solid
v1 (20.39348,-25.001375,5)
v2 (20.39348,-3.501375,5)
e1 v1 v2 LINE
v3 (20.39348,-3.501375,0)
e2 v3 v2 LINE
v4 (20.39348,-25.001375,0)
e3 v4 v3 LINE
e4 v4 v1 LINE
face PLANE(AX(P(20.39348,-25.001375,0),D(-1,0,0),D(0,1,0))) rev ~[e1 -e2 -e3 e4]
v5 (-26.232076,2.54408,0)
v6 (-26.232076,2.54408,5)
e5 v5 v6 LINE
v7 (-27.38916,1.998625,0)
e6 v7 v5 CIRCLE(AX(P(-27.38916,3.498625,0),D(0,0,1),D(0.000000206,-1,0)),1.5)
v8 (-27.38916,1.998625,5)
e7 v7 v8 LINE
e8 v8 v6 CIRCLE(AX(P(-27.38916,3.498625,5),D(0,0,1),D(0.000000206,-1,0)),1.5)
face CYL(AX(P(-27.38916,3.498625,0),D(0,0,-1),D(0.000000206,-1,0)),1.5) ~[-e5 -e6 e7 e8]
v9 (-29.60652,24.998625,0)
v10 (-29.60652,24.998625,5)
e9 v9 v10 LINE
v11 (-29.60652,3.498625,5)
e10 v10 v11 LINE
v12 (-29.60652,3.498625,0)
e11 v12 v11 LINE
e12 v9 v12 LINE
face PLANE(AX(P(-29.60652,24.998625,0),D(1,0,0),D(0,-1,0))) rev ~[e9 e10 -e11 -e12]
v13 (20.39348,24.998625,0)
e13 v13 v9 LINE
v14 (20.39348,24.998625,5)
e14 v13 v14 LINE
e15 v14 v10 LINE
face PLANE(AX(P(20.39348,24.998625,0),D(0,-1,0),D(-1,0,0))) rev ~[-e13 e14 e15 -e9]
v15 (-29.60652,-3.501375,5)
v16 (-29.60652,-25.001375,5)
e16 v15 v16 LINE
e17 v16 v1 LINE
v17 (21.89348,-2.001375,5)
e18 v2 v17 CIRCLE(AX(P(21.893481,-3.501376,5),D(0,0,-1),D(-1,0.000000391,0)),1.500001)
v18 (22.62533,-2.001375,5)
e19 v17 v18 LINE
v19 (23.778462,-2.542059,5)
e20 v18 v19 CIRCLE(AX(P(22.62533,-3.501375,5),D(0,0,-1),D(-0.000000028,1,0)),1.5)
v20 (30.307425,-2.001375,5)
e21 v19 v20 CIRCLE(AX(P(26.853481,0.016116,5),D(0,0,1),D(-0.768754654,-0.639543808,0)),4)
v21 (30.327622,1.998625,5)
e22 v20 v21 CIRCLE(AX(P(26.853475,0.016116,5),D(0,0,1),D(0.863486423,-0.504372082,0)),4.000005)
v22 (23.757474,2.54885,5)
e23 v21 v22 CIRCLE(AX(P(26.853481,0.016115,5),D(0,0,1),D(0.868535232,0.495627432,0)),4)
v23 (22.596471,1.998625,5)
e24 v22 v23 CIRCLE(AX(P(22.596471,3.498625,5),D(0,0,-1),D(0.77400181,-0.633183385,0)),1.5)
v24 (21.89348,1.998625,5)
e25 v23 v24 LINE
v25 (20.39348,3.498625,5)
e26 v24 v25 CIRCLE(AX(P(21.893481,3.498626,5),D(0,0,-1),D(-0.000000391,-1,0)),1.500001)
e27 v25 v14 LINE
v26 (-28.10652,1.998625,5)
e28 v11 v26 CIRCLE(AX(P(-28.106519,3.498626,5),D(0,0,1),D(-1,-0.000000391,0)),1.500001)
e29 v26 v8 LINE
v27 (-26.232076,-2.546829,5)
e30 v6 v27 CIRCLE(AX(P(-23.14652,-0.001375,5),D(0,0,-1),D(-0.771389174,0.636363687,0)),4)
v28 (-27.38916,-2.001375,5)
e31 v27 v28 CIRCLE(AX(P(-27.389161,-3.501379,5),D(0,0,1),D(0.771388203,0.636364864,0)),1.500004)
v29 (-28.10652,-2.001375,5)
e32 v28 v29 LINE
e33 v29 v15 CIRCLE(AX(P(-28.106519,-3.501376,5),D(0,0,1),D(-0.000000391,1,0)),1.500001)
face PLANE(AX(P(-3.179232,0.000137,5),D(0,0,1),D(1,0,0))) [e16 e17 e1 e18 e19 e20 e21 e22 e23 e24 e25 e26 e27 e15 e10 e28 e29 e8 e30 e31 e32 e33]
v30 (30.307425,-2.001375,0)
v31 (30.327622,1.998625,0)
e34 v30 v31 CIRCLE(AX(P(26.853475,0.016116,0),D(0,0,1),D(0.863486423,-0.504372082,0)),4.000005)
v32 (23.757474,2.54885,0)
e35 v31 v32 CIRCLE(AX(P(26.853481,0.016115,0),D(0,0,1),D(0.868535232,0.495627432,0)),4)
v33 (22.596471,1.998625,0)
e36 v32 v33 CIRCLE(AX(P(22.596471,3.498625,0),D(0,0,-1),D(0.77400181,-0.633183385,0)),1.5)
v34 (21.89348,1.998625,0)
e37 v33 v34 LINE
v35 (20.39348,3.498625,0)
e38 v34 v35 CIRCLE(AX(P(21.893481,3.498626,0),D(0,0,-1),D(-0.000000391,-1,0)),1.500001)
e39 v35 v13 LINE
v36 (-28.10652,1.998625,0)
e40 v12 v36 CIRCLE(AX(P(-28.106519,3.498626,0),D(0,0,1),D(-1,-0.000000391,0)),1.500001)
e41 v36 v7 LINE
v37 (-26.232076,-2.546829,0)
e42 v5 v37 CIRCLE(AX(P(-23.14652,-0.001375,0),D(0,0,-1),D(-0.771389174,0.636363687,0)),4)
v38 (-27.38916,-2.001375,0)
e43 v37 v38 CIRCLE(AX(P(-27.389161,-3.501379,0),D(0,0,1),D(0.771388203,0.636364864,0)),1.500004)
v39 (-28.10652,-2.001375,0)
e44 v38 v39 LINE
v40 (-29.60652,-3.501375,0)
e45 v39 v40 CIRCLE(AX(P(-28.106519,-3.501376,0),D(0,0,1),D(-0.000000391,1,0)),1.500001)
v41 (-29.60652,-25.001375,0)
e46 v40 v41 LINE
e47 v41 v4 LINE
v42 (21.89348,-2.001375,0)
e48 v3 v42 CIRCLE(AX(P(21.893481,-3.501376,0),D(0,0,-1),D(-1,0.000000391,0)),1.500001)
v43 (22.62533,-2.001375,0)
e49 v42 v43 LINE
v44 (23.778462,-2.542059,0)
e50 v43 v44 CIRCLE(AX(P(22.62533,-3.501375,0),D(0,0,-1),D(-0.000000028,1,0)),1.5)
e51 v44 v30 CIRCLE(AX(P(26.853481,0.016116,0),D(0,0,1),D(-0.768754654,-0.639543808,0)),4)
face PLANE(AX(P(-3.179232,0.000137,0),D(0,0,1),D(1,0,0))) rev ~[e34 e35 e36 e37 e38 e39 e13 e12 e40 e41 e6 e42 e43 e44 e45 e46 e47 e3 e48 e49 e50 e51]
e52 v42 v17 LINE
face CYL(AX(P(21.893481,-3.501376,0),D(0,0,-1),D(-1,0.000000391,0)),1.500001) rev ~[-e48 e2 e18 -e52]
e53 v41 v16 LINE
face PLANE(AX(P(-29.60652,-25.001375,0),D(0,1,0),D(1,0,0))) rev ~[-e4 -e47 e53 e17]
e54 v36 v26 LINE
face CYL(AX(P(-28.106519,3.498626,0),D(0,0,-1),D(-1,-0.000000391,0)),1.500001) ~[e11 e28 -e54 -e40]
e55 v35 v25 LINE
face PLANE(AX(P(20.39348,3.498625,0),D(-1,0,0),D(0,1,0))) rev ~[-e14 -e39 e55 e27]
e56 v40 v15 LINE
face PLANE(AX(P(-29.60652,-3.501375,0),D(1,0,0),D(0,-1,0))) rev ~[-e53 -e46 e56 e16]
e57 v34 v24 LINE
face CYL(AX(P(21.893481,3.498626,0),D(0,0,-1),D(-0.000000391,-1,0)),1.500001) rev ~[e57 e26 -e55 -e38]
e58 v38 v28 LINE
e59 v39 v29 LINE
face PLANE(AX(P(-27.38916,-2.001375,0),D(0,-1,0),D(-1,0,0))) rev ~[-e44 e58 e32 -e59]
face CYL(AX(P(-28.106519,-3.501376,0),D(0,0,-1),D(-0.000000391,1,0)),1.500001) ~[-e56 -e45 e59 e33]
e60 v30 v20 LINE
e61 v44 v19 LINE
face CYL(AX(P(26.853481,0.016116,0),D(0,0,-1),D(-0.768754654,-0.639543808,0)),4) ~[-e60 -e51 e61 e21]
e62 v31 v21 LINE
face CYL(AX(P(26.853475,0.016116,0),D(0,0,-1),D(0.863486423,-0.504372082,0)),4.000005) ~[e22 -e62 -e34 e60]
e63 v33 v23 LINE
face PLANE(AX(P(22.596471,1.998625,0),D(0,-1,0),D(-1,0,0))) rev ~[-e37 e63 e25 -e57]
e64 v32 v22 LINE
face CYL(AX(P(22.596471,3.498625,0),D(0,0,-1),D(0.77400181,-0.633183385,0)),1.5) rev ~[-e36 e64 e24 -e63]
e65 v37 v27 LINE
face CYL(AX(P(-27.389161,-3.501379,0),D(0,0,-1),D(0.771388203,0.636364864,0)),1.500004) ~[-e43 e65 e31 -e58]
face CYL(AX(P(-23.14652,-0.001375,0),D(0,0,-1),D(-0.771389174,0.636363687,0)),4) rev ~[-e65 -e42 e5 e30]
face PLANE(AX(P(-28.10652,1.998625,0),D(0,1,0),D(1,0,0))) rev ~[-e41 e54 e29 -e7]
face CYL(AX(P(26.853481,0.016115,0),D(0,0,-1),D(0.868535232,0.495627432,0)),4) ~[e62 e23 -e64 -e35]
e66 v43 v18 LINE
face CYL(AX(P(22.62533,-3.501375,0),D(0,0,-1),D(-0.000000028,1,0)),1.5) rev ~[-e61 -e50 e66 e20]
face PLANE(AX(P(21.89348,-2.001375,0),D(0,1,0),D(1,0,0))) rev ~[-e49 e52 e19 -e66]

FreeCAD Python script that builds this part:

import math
import FreeCAD as App
import Part
import Sketcher

doc = App.newDocument("Part")
body = doc.addObject("PartDesign::Body", "Body")

sketch1 = body.newObject("Sketcher::SketchObject", "Sketch")
sketch1.AttachmentSupport = (doc.getObject("XY_Plane"), [""])
sketch1.MapMode = "FlatFace"
sketch1.addGeometry(Part.LineSegment(App.Vector(20.4, 25, 0), App.Vector(-29.6, 25, 0)), False)
sketch1.addGeometry(Part.LineSegment(App.Vector(-29.6, 25, 0), App.Vector(-29.6, 3.5, 0)), False)
sketch1.addGeometry(Part.ArcOfCircle(Part.Circle(App.Vector(-28.1, 3.5, 0), App.Vector(0, 0, 1), 1.5), math.radians(-180), math.radians(-90)), False)
sketch1.addGeometry(Part.LineSegment(App.Vector(-28.1, 2, 0), App.Vector(-27.4, 2, 0)), False)
sketch1.addGeometry(Part.ArcOfCircle(Part.Circle(App.Vector(-27.4, 3.5, 0), App.Vector(0, 0, 1), 1.5), math.radians(-90), math.radians(-40)), False)
sketch1.addGeometry(Part.ArcOfCircle(Part.Circle(App.Vector(-23.1, 0, 0), App.Vector(0, 0, 1), 4), math.radians(-140), math.radians(140)), False)
sketch1.addGeometry(Part.ArcOfCircle(Part.Circle(App.Vector(-27.4, -3.5, 0), App.Vector(0, 0, 1), 1.5), math.radians(40), math.radians(90)), False)
sketch1.addGeometry(Part.LineSegment(App.Vector(-27.4, -2, 0), App.Vector(-28.1, -2, 0)), False)
sketch1.addGeometry(Part.ArcOfCircle(Part.Circle(App.Vector(-28.1, -3.5, 0), App.Vector(0, 0, 1), 1.5), math.radians(90), math.radians(180)), False)
sketch1.addGeometry(Part.LineSegment(App.Vector(-29.6, -3.5, 0), App.Vector(-29.6, -25, 0)), False)
sketch1.addGeometry(Part.LineSegment(App.Vector(-29.6, -25, 0), App.Vector(20.4, -25, 0)), False)
sketch1.addGeometry(Part.LineSegment(App.Vector(20.4, -25, 0), App.Vector(20.4, -3.5, 0)), False)
sketch1.addGeometry(Part.ArcOfCircle(Part.Circle(App.Vector(21.9, -3.5, 0), App.Vector(0, 0, 1), 1.5), math.radians(90), math.radians(180)), False)
sketch1.addGeometry(Part.LineSegment(App.Vector(21.9, -2, 0), App.Vector(22.6, -2, 0)), False)
sketch1.addGeometry(Part.ArcOfCircle(Part.Circle(App.Vector(22.6, -3.5, 0), App.Vector(0, 0, 1), 1.5), math.radians(40), math.radians(90)), False)
sketch1.addGeometry(Part.ArcOfCircle(Part.Circle(App.Vector(26.9, 0, 0), App.Vector(0, 0, 1), 4), math.radians(-140), math.radians(-30)), False)
sketch1.addGeometry(Part.ArcOfCircle(Part.Circle(App.Vector(26.9, 0, 0), App.Vector(0, 0, 1), 4), math.radians(-30), math.radians(30)), False)
sketch1.addGeometry(Part.ArcOfCircle(Part.Circle(App.Vector(26.9, 0, 0), App.Vector(0, 0, 1), 4), math.radians(30), math.radians(141)), False)
sketch1.addGeometry(Part.ArcOfCircle(Part.Circle(App.Vector(22.6, 3.5, 0), App.Vector(0, 0, 1), 1.5), math.radians(-90), math.radians(-39)), False)
sketch1.addGeometry(Part.LineSegment(App.Vector(22.6, 2, 0), App.Vector(21.9, 2, 0)), False)
sketch1.addGeometry(Part.ArcOfCircle(Part.Circle(App.Vector(21.9, 3.5, 0), App.Vector(0, 0, 1), 1.5), math.radians(-180), math.radians(-90)), False)
sketch1.addGeometry(Part.LineSegment(App.Vector(20.4, 3.5, 0), App.Vector(20.4, 25, 0)), False)
sketch1.addConstraint(Sketcher.Constraint("Coincident", 0, 2, 1, 1))
sketch1.addConstraint(Sketcher.Constraint("Tangent", 1, 2, 2, 1))
sketch1.addConstraint(Sketcher.Constraint("Tangent", 2, 2, 3, 1))
sketch1.addConstraint(Sketcher.Constraint("Tangent", 3, 2, 4, 1))
sketch1.addConstraint(Sketcher.Constraint("Tangent", 4, 2, 5, 2))
sketch1.addConstraint(Sketcher.Constraint("Tangent", 5, 1, 6, 1))
sketch1.addConstraint(Sketcher.Constraint("Tangent", 6, 2, 7, 1))
sketch1.addConstraint(Sketcher.Constraint("Tangent", 7, 2, 8, 1))
sketch1.addConstraint(Sketcher.Constraint("Tangent", 8, 2, 9, 1))
sketch1.addConstraint(Sketcher.Constraint("Coincident", 9, 2, 10, 1))
sketch1.addConstraint(Sketcher.Constraint("Coincident", 10, 2, 11, 1))
sketch1.addConstraint(Sketcher.Constraint("Tangent", 11, 2, 12, 2))
sketch1.addConstraint(Sketcher.Constraint("Tangent", 12, 1, 13, 1))
sketch1.addConstraint(Sketcher.Constraint("Tangent", 13, 2, 14, 2))
sketch1.addConstraint(Sketcher.Constraint("Tangent", 14, 1, 15, 1))
sketch1.addConstraint(Sketcher.Constraint("Tangent", 15, 2, 16, 1))
sketch1.addConstraint(Sketcher.Constraint("Tangent", 16, 2, 17, 1))
sketch1.addConstraint(Sketcher.Constraint("Tangent", 17, 2, 18, 2))
sketch1.addConstraint(Sketcher.Constraint("Tangent", 18, 1, 19, 1))
sketch1.addConstraint(Sketcher.Constraint("Tangent", 19, 2, 20, 2))
sketch1.addConstraint(Sketcher.Constraint("Tangent", 20, 1, 21, 1))
sketch1.addConstraint(Sketcher.Constraint("Coincident", 21, 2, 0, 1))
sketch1.addConstraint(Sketcher.Constraint("Horizontal", 0))
sketch1.addConstraint(Sketcher.Constraint("Vertical", 1))
sketch1.addConstraint(Sketcher.Constraint("Horizontal", 3))
sketch1.addConstraint(Sketcher.Constraint("Horizontal", 7))
sketch1.addConstraint(Sketcher.Constraint("Vertical", 9))
sketch1.addConstraint(Sketcher.Constraint("Horizontal", 10))
sketch1.addConstraint(Sketcher.Constraint("Vertical", 11))
sketch1.addConstraint(Sketcher.Constraint("Horizontal", 13))
sketch1.addConstraint(Sketcher.Constraint("Horizontal", 19))
sketch1.addConstraint(Sketcher.Constraint("Vertical", 21))
sketch1.addConstraint(Sketcher.Constraint("Coincident", 17, 3, 15, 3))
sketch1.addConstraint(Sketcher.Constraint("Equal", 2, 4))
sketch1.addConstraint(Sketcher.Constraint("Equal", 4, 8))
sketch1.addConstraint(Sketcher.Constraint("Equal", 8, 12))
sketch1.addConstraint(Sketcher.Constraint("Equal", 12, 14))
sketch1.addConstraint(Sketcher.Constraint("Equal", 5, 15))
sketch1.addConstraint(Sketcher.Constraint("Equal", 14, 18))
sketch1.addConstraint(Sketcher.Constraint("Equal", 18, 20))
sketch1.addConstraint(Sketcher.Constraint("Horizontal", 8, 3, 12, 3))
sketch1.addConstraint(Sketcher.Constraint("Horizontal", 4, 3, 18, 3))
sketch1.addConstraint(Sketcher.Constraint("Horizontal", 13, 2, 15, 2))
sketch1.addConstraint(Sketcher.Constraint("Horizontal", 3, 2, 16, 2))
sketch1.addConstraint(Sketcher.Constraint("Vertical", 4, 3, 6, 3))
sketch1.addConstraint(Sketcher.Constraint("Vertical", 2, 3, 8, 3))
sketch1.addConstraint(Sketcher.Constraint("Vertical", 12, 3, 20, 3))
sketch1.addConstraint(Sketcher.Constraint("Vertical", 4, 2, 5, 1))
sketch1.addConstraint(Sketcher.Constraint("Equal", 1, 9))
sketch1.addConstraint(Sketcher.Constraint("Radius", 5, 4.0))
sketch1.addConstraint(Sketcher.Constraint("Radius", 2, 1.500001))
sketch1.addConstraint(Sketcher.Constraint("DistanceX", 0, 2, 0, 1, 50.0))
sketch1.addConstraint(Sketcher.Constraint("DistanceY", 1, 2, 1, 1, 21.5))
sketch1.addConstraint(Sketcher.Constraint("DistanceY", 8, 3, 2, 3, 7.000001))
sketch1.addConstraint(Sketcher.Constraint("DistanceX", 5, 3, 15, 3, 50.0))
sketch1.addConstraint(Sketcher.Constraint("DistanceX", 2, 3, 5, 3, 4.96))
sketch1.addConstraint(Sketcher.Constraint("DistanceX", 17, 2, 16, 3, 3.096001))
sketch1.addConstraint(Sketcher.Constraint("DistanceX", 2, 3, -1, 1, 28.106519))
sketch1.addConstraint(Sketcher.Constraint("DistanceY", 6, 3, -1, 1, 3.501379))
pad1 = body.newObject("PartDesign::Pad", "Pad")
pad1.Profile = sketch1
pad1.Length = 5

doc.recompute()
